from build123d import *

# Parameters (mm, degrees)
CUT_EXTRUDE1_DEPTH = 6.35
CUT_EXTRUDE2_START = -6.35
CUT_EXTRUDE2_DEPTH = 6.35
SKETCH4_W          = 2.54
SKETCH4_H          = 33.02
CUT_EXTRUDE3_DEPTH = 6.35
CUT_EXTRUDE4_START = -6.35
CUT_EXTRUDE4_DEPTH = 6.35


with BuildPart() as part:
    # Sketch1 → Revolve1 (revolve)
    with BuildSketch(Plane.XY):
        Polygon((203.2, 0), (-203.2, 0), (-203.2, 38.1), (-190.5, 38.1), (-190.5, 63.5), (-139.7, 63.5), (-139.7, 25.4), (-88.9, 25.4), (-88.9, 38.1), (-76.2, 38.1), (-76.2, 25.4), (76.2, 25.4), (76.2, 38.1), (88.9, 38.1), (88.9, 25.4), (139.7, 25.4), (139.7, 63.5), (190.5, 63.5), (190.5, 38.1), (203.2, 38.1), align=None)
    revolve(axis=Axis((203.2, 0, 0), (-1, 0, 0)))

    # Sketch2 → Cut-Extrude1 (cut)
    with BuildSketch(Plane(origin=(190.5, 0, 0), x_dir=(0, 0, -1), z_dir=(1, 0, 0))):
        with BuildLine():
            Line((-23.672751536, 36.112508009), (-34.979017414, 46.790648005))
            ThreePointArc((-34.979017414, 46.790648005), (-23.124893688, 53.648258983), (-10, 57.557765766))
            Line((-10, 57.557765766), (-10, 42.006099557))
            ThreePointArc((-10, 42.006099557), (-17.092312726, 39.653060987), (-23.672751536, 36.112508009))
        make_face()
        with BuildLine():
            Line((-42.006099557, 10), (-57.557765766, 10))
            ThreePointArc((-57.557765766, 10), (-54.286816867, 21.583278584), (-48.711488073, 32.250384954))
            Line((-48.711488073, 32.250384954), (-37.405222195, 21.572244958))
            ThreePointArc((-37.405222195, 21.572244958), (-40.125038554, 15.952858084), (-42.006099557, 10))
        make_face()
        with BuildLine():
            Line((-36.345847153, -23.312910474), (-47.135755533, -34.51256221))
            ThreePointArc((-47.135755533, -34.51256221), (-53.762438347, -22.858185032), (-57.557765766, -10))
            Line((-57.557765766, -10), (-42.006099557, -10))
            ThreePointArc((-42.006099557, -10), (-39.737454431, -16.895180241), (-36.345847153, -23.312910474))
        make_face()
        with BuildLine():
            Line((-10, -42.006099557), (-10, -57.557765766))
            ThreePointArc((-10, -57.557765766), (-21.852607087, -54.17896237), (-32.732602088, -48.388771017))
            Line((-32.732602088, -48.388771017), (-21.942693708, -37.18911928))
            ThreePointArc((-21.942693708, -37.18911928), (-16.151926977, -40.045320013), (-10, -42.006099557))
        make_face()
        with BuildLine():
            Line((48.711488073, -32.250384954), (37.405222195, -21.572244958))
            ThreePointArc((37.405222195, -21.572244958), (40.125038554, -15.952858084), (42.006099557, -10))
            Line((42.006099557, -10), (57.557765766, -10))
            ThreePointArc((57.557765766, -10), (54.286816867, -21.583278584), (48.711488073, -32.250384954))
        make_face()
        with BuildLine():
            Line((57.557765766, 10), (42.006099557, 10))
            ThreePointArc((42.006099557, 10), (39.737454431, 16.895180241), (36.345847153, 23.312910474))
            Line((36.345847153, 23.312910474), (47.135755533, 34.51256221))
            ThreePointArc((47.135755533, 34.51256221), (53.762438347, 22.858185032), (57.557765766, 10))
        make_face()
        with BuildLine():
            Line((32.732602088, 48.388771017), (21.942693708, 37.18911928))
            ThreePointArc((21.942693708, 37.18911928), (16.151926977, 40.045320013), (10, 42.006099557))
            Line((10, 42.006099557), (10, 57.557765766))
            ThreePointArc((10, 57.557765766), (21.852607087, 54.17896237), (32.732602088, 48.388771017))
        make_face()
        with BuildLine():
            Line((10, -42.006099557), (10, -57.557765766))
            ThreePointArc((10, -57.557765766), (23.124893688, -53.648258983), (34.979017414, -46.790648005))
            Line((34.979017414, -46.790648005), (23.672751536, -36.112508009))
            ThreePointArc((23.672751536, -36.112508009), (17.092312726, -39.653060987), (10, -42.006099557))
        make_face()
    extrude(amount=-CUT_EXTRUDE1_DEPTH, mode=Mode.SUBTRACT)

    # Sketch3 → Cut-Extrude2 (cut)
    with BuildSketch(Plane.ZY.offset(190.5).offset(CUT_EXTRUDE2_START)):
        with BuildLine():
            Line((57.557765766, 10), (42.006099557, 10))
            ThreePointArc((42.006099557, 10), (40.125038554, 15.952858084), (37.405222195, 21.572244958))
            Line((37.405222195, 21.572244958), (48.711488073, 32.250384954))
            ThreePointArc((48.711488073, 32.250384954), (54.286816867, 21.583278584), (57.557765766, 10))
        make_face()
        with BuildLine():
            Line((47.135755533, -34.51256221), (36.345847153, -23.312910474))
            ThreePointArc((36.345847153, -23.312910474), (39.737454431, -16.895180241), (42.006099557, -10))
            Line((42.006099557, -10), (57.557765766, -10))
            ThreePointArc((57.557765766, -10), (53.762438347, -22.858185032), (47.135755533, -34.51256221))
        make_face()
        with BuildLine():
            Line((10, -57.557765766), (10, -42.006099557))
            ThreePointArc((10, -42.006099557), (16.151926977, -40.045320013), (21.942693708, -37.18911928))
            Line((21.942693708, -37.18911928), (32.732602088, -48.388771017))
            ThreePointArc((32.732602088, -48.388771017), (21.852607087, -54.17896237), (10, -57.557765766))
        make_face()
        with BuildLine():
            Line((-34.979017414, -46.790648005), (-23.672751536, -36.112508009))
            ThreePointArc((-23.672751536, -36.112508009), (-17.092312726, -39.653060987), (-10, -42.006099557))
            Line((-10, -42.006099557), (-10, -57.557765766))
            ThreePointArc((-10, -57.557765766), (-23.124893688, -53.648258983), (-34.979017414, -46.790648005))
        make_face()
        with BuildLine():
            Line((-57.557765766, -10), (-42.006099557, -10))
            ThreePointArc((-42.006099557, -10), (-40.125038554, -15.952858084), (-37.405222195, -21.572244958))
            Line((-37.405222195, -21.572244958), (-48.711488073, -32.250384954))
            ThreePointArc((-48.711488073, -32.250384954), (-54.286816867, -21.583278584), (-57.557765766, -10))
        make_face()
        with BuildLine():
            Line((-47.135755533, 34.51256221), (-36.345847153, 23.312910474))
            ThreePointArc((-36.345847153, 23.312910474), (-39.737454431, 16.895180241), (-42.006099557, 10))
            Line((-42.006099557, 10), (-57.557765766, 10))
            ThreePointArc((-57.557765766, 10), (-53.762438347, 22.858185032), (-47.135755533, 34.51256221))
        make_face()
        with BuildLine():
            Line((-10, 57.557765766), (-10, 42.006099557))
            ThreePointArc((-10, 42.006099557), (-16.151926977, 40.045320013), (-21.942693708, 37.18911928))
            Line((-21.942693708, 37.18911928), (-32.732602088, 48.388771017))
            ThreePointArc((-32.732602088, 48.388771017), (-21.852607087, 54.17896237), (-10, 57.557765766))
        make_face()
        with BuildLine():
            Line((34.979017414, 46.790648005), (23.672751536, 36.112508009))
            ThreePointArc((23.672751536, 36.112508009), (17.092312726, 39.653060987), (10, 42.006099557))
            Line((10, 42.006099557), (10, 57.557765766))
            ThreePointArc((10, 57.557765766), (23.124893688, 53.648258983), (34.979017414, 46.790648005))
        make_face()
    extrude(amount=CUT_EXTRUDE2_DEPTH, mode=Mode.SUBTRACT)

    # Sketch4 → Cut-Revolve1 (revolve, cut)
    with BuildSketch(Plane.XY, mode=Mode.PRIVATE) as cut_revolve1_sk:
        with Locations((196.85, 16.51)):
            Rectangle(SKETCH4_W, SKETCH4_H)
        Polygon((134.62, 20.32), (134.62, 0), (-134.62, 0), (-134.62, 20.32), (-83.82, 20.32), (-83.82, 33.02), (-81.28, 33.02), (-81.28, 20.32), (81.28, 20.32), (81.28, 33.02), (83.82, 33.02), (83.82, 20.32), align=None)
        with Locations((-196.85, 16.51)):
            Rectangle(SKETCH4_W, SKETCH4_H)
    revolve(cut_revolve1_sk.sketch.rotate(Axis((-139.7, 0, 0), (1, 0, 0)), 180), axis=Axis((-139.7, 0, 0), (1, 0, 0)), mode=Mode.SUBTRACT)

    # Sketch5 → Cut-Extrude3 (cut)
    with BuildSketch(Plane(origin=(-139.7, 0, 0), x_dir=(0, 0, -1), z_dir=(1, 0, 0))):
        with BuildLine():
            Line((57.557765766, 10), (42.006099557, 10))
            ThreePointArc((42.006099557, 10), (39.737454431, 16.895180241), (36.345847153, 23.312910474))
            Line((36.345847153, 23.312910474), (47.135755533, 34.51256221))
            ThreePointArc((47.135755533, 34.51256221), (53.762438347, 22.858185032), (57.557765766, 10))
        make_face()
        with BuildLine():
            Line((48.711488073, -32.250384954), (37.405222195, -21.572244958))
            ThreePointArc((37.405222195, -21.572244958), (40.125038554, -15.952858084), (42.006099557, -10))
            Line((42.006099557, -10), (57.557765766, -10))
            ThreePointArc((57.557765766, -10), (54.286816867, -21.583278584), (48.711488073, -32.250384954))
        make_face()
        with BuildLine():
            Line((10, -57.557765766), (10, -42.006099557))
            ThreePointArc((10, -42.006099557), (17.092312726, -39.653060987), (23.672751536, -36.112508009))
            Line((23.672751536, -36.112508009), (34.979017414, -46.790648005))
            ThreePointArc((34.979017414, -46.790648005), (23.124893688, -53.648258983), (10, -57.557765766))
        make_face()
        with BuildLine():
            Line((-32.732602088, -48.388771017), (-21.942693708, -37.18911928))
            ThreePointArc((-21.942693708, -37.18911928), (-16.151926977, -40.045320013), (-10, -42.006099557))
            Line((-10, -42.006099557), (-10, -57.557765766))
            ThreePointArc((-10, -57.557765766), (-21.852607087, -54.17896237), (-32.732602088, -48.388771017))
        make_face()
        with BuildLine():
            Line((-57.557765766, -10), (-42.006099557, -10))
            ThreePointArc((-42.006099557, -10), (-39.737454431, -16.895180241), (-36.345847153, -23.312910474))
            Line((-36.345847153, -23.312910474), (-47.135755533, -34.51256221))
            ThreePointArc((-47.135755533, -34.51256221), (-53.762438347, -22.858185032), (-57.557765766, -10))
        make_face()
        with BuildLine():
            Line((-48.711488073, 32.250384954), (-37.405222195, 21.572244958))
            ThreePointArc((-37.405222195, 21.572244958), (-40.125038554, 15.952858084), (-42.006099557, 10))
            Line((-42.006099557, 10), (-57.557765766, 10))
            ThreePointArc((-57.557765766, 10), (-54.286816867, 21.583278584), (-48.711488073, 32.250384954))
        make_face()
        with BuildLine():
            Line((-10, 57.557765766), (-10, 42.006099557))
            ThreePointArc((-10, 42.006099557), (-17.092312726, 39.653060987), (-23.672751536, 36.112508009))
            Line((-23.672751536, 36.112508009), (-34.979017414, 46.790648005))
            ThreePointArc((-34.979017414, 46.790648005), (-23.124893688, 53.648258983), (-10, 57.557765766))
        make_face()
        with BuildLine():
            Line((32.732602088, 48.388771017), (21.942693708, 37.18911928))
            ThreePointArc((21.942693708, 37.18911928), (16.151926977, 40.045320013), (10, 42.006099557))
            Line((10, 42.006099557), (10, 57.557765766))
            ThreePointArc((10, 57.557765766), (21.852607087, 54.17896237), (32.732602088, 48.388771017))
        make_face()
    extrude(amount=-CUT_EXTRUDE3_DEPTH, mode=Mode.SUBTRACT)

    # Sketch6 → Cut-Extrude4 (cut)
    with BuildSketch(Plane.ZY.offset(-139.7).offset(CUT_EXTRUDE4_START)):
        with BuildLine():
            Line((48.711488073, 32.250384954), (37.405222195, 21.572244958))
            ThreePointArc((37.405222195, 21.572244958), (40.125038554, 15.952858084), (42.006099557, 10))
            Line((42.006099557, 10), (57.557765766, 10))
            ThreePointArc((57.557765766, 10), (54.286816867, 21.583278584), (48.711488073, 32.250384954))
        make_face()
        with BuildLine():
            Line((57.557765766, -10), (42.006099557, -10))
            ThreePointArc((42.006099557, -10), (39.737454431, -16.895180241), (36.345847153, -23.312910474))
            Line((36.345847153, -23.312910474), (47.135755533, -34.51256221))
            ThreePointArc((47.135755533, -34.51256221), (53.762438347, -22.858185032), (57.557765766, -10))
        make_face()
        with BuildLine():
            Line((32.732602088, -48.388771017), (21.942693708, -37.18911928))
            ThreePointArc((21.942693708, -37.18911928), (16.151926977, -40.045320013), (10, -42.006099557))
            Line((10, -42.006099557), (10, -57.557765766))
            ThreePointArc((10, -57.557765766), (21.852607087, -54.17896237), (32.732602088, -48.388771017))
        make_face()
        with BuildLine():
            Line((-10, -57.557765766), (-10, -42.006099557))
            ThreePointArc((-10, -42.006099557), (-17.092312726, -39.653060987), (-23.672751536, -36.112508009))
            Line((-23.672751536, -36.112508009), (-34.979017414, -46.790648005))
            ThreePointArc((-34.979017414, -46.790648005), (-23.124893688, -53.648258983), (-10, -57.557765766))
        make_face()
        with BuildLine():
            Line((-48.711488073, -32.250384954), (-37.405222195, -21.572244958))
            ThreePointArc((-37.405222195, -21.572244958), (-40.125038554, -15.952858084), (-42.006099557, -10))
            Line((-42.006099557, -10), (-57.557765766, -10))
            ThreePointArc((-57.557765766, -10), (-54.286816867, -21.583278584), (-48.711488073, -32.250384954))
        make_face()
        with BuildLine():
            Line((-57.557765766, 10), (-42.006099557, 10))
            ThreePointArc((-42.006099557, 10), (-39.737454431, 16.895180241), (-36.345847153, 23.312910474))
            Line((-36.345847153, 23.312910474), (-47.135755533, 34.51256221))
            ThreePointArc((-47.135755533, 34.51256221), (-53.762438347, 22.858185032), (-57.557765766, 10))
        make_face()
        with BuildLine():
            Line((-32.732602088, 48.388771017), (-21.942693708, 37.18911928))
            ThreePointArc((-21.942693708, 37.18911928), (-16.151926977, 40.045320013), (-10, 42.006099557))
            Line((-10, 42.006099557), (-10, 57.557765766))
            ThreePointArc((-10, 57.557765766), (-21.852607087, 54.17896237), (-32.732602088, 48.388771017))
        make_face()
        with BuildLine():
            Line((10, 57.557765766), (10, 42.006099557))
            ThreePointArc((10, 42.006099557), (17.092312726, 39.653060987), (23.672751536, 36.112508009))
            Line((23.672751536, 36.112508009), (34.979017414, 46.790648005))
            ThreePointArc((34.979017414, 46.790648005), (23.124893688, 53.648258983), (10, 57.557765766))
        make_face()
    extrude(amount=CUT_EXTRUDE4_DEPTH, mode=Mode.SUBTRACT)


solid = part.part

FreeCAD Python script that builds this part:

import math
import FreeCAD as App
import Part
import Sketcher
Q = App.Units.Quantity

doc = App.newDocument("Part")
body = doc.addObject("PartDesign::Body", "Body")

# Sketch on XY plane
sketch1 = doc.addObject("Sketcher::SketchObject", "Sketch")
body.addObject(sketch1)
sketch1.AttachmentSupport = (doc.XY_Plane, [""])
sketch1.MapMode = "FlatFace"
sketch1.addGeometry([
    Part.LineSegment(App.Vector(-203, 0, 0), App.Vector(203, 0, 0)),  # 0
    Part.LineSegment(App.Vector(203, 0, 0), App.Vector(203, 38, 0)),  # 1
    Part.LineSegment(App.Vector(203, 38, 0), App.Vector(190, 38, 0)),  # 2
    Part.LineSegment(App.Vector(190, 38, 0), App.Vector(190, 64, 0)),  # 3
    Part.LineSegment(App.Vector(190, 64, 0), App.Vector(140, 64, 0)),  # 4
    Part.LineSegment(App.Vector(140, 64, 0), App.Vector(140, 25, 0)),  # 5
    Part.LineSegment(App.Vector(140, 25, 0), App.Vector(89, 25, 0)),  # 6
    Part.LineSegment(App.Vector(89, 25, 0), App.Vector(89, 38, 0)),  # 7
    Part.LineSegment(App.Vector(89, 38, 0), App.Vector(76, 38, 0)),  # 8
    Part.LineSegment(App.Vector(76, 38, 0), App.Vector(76, 25, 0)),  # 9
    Part.LineSegment(App.Vector(76, 25, 0), App.Vector(-76, 25, 0)),  # 10
    Part.LineSegment(App.Vector(-76, 25, 0), App.Vector(-76, 38, 0)),  # 11
    Part.LineSegment(App.Vector(-76, 38, 0), App.Vector(-89, 38, 0)),  # 12
    Part.LineSegment(App.Vector(-89, 38, 0), App.Vector(-89, 25, 0)),  # 13
    Part.LineSegment(App.Vector(-89, 25, 0), App.Vector(-140, 25, 0)),  # 14
    Part.LineSegment(App.Vector(-140, 25, 0), App.Vector(-140, 64, 0)),  # 15
    Part.LineSegment(App.Vector(-140, 64, 0), App.Vector(-190, 64, 0)),  # 16
    Part.LineSegment(App.Vector(-190, 64, 0), App.Vector(-190, 38, 0)),  # 17
    Part.LineSegment(App.Vector(-190, 38, 0), App.Vector(-203, 38, 0)),  # 18
    Part.LineSegment(App.Vector(-203, 38, 0), App.Vector(-203, 0, 0)),  # 19
], False)
sketch1.addConstraint([
    Sketcher.Constraint("Coincident", 0, 2, 1, 1),
    Sketcher.Constraint("Coincident", 1, 2, 2, 1),
    Sketcher.Constraint("Coincident", 2, 2, 3, 1),
    Sketcher.Constraint("Coincident", 3, 2, 4, 1),
    Sketcher.Constraint("Coincident", 4, 2, 5, 1),
    Sketcher.Constraint("Coincident", 5, 2, 6, 1),
    Sketcher.Constraint("Coincident", 6, 2, 7, 1),
    Sketcher.Constraint("Coincident", 7, 2, 8, 1),
    Sketcher.Constraint("Coincident", 8, 2, 9, 1),
    Sketcher.Constraint("Coincident", 9, 2, 10, 1),
    Sketcher.Constraint("Coincident", 10, 2, 11, 1),
    Sketcher.Constraint("Coincident", 11, 2, 12, 1),
    Sketcher.Constraint("Coincident", 12, 2, 13, 1),
    Sketcher.Constraint("Coincident", 13, 2, 14, 1),
    Sketcher.Constraint("Coincident", 14, 2, 15, 1),
    Sketcher.Constraint("Coincident", 15, 2, 16, 1),
    Sketcher.Constraint("Coincident", 16, 2, 17, 1),
    Sketcher.Constraint("Coincident", 17, 2, 18, 1),
    Sketcher.Constraint("Coincident", 18, 2, 19, 1),
    Sketcher.Constraint("Coincident", 19, 2, 0, 1),
    Sketcher.Constraint("Horizontal", 0),
    Sketcher.Constraint("Vertical", 1),
    Sketcher.Constraint("Horizontal", 2),
    Sketcher.Constraint("Vertical", 3),
    Sketcher.Constraint("Horizontal", 4),
    Sketcher.Constraint("Vertical", 5),
    Sketcher.Constraint("Horizontal", 6),
    Sketcher.Constraint("Vertical", 7),
    Sketcher.Constraint("Horizontal", 8),
    Sketcher.Constraint("Vertical", 9),
    Sketcher.Constraint("Horizontal", 10),
    Sketcher.Constraint("Vertical", 11),
    Sketcher.Constraint("Horizontal", 12),
    Sketcher.Constraint("Vertical", 13),
    Sketcher.Constraint("Horizontal", 14),
    Sketcher.Constraint("Vertical", 15),
    Sketcher.Constraint("Horizontal", 16),
    Sketcher.Constraint("Vertical", 17),
    Sketcher.Constraint("Horizontal", 18),
    Sketcher.Constraint("Vertical", 19),
    Sketcher.Constraint("Symmetric", 0, 2, 19, 2, -1, 1),
    Sketcher.Constraint("Symmetric", 8, 2, 11, 2, -2),
    Sketcher.Constraint("Symmetric", 6, 2, 13, 2, -2),
    Sketcher.Constraint("Symmetric", 4, 2, 15, 2, -2),
    Sketcher.Constraint("Symmetric", 2, 2, 17, 2, -2),
    Sketcher.Constraint("Horizontal", 2, 2, 7, 2),
    Sketcher.Constraint("Horizontal", 6, 2, 9, 2),
    Sketcher.Constraint("Equal", 4, 6),
    Sketcher.Constraint("Equal", 2, 8),
    Sketcher.Constraint("Equal", 1, 5),
    Sketcher.Constraint("Equal", 18, 7),
    Sketcher.Constraint("DistanceX", 0, 1, 0, 2, Q("16 in")),
    Sketcher.Constraint("DistanceX", 4, 2, 4, 1, Q("2 in")),
    Sketcher.Constraint("DistanceX", 10, 2, 10, 1, Q("6 in")),
    Sketcher.Constraint("DistanceY", 3, 1, 3, 2, Q("1 in")),
])
revolution = doc.addObject("PartDesign::Revolution", "Revolution")
body.addObject(revolution)
revolution.Profile = sketch1
revolution.ReferenceAxis = (sketch1, ["H_Axis"])
revolution.Angle = 360

# Sketch on YZ plane
sketch2 = doc.addObject("Sketcher::SketchObject", "Sketch001")
body.addObject(sketch2)
sketch2.AttachmentSupport = (doc.YZ_Plane, [""])
sketch2.MapMode = "FlatFace"
sketch2.AttachmentOffset = App.Placement(App.Vector(0, 0, 7.5 * 25.4), App.Rotation())
sketch2.addGeometry([
    Part.LineSegment(App.Vector(47, 35, 0), App.Vector(36, 24, 0)),  # 0
    Part.ArcOfCircle(Part.Circle(App.Vector(0, 0, 0), App.Vector(0, 0, 1), 43), math.radians(13.39), math.radians(33.25)),  # 1
    Part.LineSegment(App.Vector(42, 10, 0), App.Vector(58, 10, 0)),  # 2
    Part.ArcOfCircle(Part.Circle(App.Vector(0, 0, 0), App.Vector(0, 0, 1), 58), math.radians(10), math.radians(37)),  # 3
    Part.LineSegment(App.Vector(10, 58, 0), App.Vector(10, 42, 0)),  # 4
    Part.ArcOfCircle(Part.Circle(App.Vector(0, 0, 0), App.Vector(0, 0, 1), 43), math.radians(60.03), math.radians(76.61)),  # 5
    Part.LineSegment(App.Vector(22, 37, 0), App.Vector(32, 49, 0)),  # 6
    Part.ArcOfCircle(Part.Circle(App.Vector(0, 0, 0), App.Vector(0, 0, 1), 58), math.radians(56), math.radians(80)),  # 7
    Part.LineSegment(App.Vector(-35, 47, 0), App.Vector(-23, 36, 0)),  # 8
    Part.ArcOfCircle(Part.Circle(App.Vector(0, 0, 0), App.Vector(0, 0, 1), 43), math.radians(103.39), math.radians(122.68)),  # 9
    Part.LineSegment(App.Vector(-10, 42, 0), App.Vector(-10, 58, 0)),  # 10
    Part.ArcOfCircle(Part.Circle(App.Vector(0, 0, 0), App.Vector(0, 0, 1), 58), math.radians(100), math.radians(126)),  # 11
    Part.LineSegment(App.Vector(-58, 10, 0), App.Vector(-42, 10, 0)),  # 12
    Part.ArcOfCircle(Part.Circle(App.Vector(0, 0, 0), App.Vector(0, 0, 1), 43), math.radians(149.46), math.radians(166.61)),  # 13
    Part.LineSegment(App.Vector(-37, 22, 0), App.Vector(-48, 33, 0)),  # 14
    Part.ArcOfCircle(Part.Circle(App.Vector(0, 0, 0), App.Vector(0, 0, 1), 58), math.radians(146), math.radians(170)),  # 15
    Part.LineSegment(App.Vector(-22, -37, 0), App.Vector(-32, -49, 0)),  # 16
    Part.ArcOfCircle(Part.Circle(App.Vector(0, 0, 0), App.Vector(0, 0, 1), 58), math.radians(-124), math.radians(-100)),  # 17
    Part.LineSegment(App.Vector(-10, -58, 0), App.Vector(-10, -42, 0)),  # 18
    Part.ArcOfCircle(Part.Circle(App.Vector(0, 0, 0), App.Vector(0, 0, 1), 43), math.radians(-119.97), math.radians(-103.39)),  # 19
    Part.LineSegment(App.Vector(10, -42, 0), App.Vector(10, -58, 0)),  # 20
    Part.ArcOfCircle(Part.Circle(App.Vector(0, 0, 0), App.Vector(0, 0, 1), 58), math.radians(-80), math.radians(-54)),  # 21
    Part.LineSegment(App.Vector(35, -47, 0), App.Vector(23, -36, 0)),  # 22
    Part.ArcOfCircle(Part.Circle(App.Vector(0, 0, 0), App.Vector(0, 0, 1), 43), math.radians(-76.61), math.radians(-57.32)),  # 23
    Part.LineSegment(App.Vector(37, -22, 0), App.Vector(48, -33, 0)),  # 24
    Part.ArcOfCircle(Part.Circle(App.Vector(0, 0, 0), App.Vector(0, 0, 1), 58), math.radians(-34), math.radians(-10)),  # 25
    Part.LineSegment(App.Vector(58, -10, 0), App.Vector(42, -10, 0)),  # 26
    Part.ArcOfCircle(Part.Circle(App.Vector(0, 0, 0), App.Vector(0, 0, 1), 43), math.radians(-30.54), math.radians(-13.39)),  # 27
    Part.LineSegment(App.Vector(-42, -10, 0), App.Vector(-58, -10, 0)),  # 28
    Part.ArcOfCircle(Part.Circle(App.Vector(0, 0, 0), App.Vector(0, 0, 1), 58), math.radians(-170), math.radians(-143)),  # 29
    Part.LineSegment(App.Vector(-47, -35, 0), App.Vector(-36, -24, 0)),  # 30
    Part.ArcOfCircle(Part.Circle(App.Vector(0, 0, 0), App.Vector(0, 0, 1), 43), math.radians(-166.61), math.radians(-146.75)),  # 31
], False)
sketch2.addConstraint([
    Sketcher.Constraint("Coincident", 0, 2, 1, 2),
    Sketcher.Constraint("Coincident", 1, 1, 2, 1),
    Sketcher.Constraint("Coincident", 2, 2, 3, 1),
    Sketcher.Constraint("Coincident", 3, 2, 0, 1),
    Sketcher.Constraint("Coincident", 4, 2, 5, 2),
    Sketcher.Constraint("Coincident", 5, 1, 6, 1),
    Sketcher.Constraint("Coincident", 6, 2, 7, 1),
    Sketcher.Constraint("Coincident", 7, 2, 4, 1),
    Sketcher.Constraint("Coincident", 8, 2, 9, 2),
    Sketcher.Constraint("Coincident", 9, 1, 10, 1),
    Sketcher.Constraint("Coincident", 10, 2, 11, 1),
    Sketcher.Constraint("Coincident", 11, 2, 8, 1),
    Sketcher.Constraint("Coincident", 12, 2, 13, 2),
    Sketcher.Constraint("Coincident", 13, 1, 14, 1),
    Sketcher.Constraint("Coincident", 14, 2, 15, 1),
    Sketcher.Constraint("Coincident", 15, 2, 12, 1),
    Sketcher.Constraint("Coincident", 16, 2, 17, 1),
    Sketcher.Constraint("Coincident", 17, 2, 18, 1),
    Sketcher.Constraint("Coincident", 18, 2, 19, 2),
    Sketcher.Constraint("Coincident", 19, 1, 16, 1),
    Sketcher.Constraint("Coincident", 20, 2, 21, 1),
    Sketcher.Constraint("Coincident", 21, 2, 22, 1),
    Sketcher.Constraint("Coincident", 22, 2, 23, 2),
    Sketcher.Constraint("Coincident", 23, 1, 20, 1),
    Sketcher.Constraint("Coincident", 24, 2, 25, 1),
    Sketcher.Constraint("Coincident", 25, 2, 26, 1),
    Sketcher.Constraint("Coincident", 26, 2, 27, 2),
    Sketcher.Constraint("Coincident", 27, 1, 24, 1),
    Sketcher.Constraint("Coincident", 28, 2, 29, 1),
    Sketcher.Constraint("Coincident", 29, 2, 30, 1),
    Sketcher.Constraint("Coincident", 30, 2, 31, 2),
    Sketcher.Constraint("Coincident", 31, 1, 28, 1),
    Sketcher.Constraint("Horizontal", 2),
    Sketcher.Constraint("Vertical", 4),
    Sketcher.Constraint("Vertical", 10),
    Sketcher.Constraint("Horizontal", 12),
    Sketcher.Constraint("Vertical", 18),
    Sketcher.Constraint("Vertical", 20),
    Sketcher.Constraint("Horizontal", 26),
    Sketcher.Constraint("Horizontal", 28),
    Sketcher.Constraint("Coincident", 1, 3, -1, 1),
    Sketcher.Constraint("Coincident", 3, 3, -1, 1),
    Sketcher.Constraint("Coincident", 5, 3, -1, 1),
    Sketcher.Constraint("Coincident", 7, 3, -1, 1),
    Sketcher.Constraint("Coincident", 9, 3, -1, 1),
    Sketcher.Constraint("Coincident", 11, 3, -1, 1),
    Sketcher.Constraint("Coincident", 13, 3, -1, 1),
    Sketcher.Constraint("Coincident", 15, 3, -1, 1),
    Sketcher.Constraint("Coincident", 17, 3, -1, 1),
    Sketcher.Constraint("Coincident", 19, 3, -1, 1),
    Sketcher.Constraint("Coincident", 21, 3, -1, 1),
    Sketcher.Constraint("Coincident", 23, 3, -1, 1),
    Sketcher.Constraint("Coincident", 25, 3, -1, 1),
    Sketcher.Constraint("Coincident", 27, 3, -1, 1),
    Sketcher.Constraint("Coincident", 29, 3, -1, 1),
    Sketcher.Constraint("Coincident", 31, 3, -1, 1),
    Sketcher.Constraint("Equal", 1, 5),
    Sketcher.Constraint("Equal", 3, 7),
    Sketcher.Constraint("Equal", 5, 9),
    Sketcher.Constraint("Equal", 7, 11),
    Sketcher.Constraint("Equal", 9, 13),
    Sketcher.Constraint("Equal", 11, 15),
    Sketcher.Constraint("Equal", 15, 17),
    Sketcher.Constraint("Equal", 13, 19),
    Sketcher.Constraint("Equal", 17, 21),
    Sketcher.Constraint("Equal", 19, 23),
    Sketcher.Constraint("Equal", 21, 25),
    Sketcher.Constraint("Equal", 23, 27),
    Sketcher.Constraint("Equal", 25, 29),
    Sketcher.Constraint("Equal", 27, 31),
    Sketcher.Constraint("Parallel", 0, 6),
    Sketcher.Constraint("Parallel", 8, 14),
    Sketcher.Constraint("Parallel", 6, 16),
    Sketcher.Constraint("Parallel", 14, 22),
    Sketcher.Constraint("Parallel", 22, 24),
    Sketcher.Constraint("Parallel", 16, 30),
    Sketcher.Constraint("Horizontal", 4, 2, 9, 1),
    Sketcher.Constraint("Horizontal", 2, 2, 12, 2),
    Sketcher.Constraint("Horizontal", 17, 2, 20, 2),
    Sketcher.Constraint("Horizontal", 26, 2, 28, 2),
    Sketcher.Constraint("Vertical", 10, 2, 17, 2),
    Sketcher.Constraint("Vertical", 2, 2, 25, 2),
    Sketcher.Constraint("Equal", 28, 4),
    Sketcher.Constraint("Equal", 0, 6),
    Sketcher.Constraint("Equal", 6, 8),
    Sketcher.Constraint("Equal", 8, 14),
    Sketcher.Constraint("Equal", 14, 16),
    Sketcher.Constraint("Equal", 16, 22),
    Sketcher.Constraint("Equal", 22, 24),
    Sketcher.Constraint("Equal", 24, 30),
    Sketcher.Constraint("Radius", 1, Q("1.7 in")),
    Sketcher.Constraint("Radius", 3, Q("2.3 in")),
    Sketcher.Constraint("DistanceX", -1, 1, 6, 2, Q("1.2697002 in")),
    Sketcher.Constraint("DistanceX", 4, 2, 5, 1, Q("0.4556002 in")),
    Sketcher.Constraint("DistanceY", -1, 1, 2, 2, 10.0),
    Sketcher.Constraint("DistanceX", 8, 2, -1, 1, 23.31291),
])
pocket1 = doc.addObject("PartDesign::Pocket", "Pocket")
body.addObject(pocket1)
pocket1.Profile = sketch2
pocket1.Length = Q("0.25 in")

# Sketch on YZ plane
sketch3 = doc.addObject("Sketcher::SketchObject", "Sketch002")
body.addObject(sketch3)
sketch3.AttachmentSupport = (doc.YZ_Plane, [""])
sketch3.MapMode = "FlatFace"
sketch3.AttachmentOffset = App.Placement(App.Vector(0, 0, -7.25 * 25.4), App.Rotation())
sketch3.addGeometry([
    Part.LineSegment(App.Vector(10, 42, 0), App.Vector(10, 58, 0)),  # 0
    Part.ArcOfCircle(Part.Circle(App.Vector(0, 0, 0), App.Vector(0, 0, 1), 58), math.radians(56), math.radians(80)),  # 1
    Part.LineSegment(App.Vector(32, 49, 0), App.Vector(22, 37, 0)),  # 2
    Part.ArcOfCircle(Part.Circle(App.Vector(0, 0, 0), App.Vector(0, 0, 1), 43), math.radians(60.03), math.radians(76.61)),  # 3
    Part.LineSegment(App.Vector(-23, 36, 0), App.Vector(-35, 47, 0)),  # 4
    Part.ArcOfCircle(Part.Circle(App.Vector(0, 0, 0), App.Vector(0, 0, 1), 58), math.radians(100), math.radians(126)),  # 5
    Part.LineSegment(App.Vector(-10, 58, 0), App.Vector(-10, 42, 0)),  # 6
    Part.ArcOfCircle(Part.Circle(App.Vector(0, 0, 0), App.Vector(0, 0, 1), 43), math.radians(103.39), math.radians(122.68)),  # 7
    Part.LineSegment(App.Vector(-42, 10, 0), App.Vector(-58, 10, 0)),  # 8
    Part.ArcOfCircle(Part.Circle(App.Vector(0, 0, 0), App.Vector(0, 0, 1), 58), math.radians(146), math.radians(170)),  # 9
    Part.LineSegment(App.Vector(-48, 33, 0), App.Vector(-37, 22, 0)),  # 10
    Part.ArcOfCircle(Part.Circle(App.Vector(0, 0, 0), App.Vector(0, 0, 1), 43), math.radians(149.46), math.radians(166.61)),  # 11
    Part.LineSegment(App.Vector(-36, -24, 0), App.Vector(-47, -35, 0)),  # 12
    Part.ArcOfCircle(Part.Circle(App.Vector(0, 0, 0), App.Vector(0, 0, 1), 58), math.radians(-170), math.radians(-143)),  # 13
    Part.LineSegment(App.Vector(-58, -10, 0), App.Vector(-42, -10, 0)),  # 14
    Part.ArcOfCircle(Part.Circle(App.Vector(0, 0, 0), App.Vector(0, 0, 1), 43), math.radians(-166.61), math.radians(-146.75)),  # 15
    Part.LineSegment(App.Vector(-10, -42, 0), App.Vector(-10, -58, 0)),  # 16
    Part.ArcOfCircle(Part.Circle(App.Vector(0, 0, 0), App.Vector(0, 0, 1), 58), math.radians(-124), math.radians(-100)),  # 17
    Part.LineSegment(App.Vector(-32, -49, 0), App.Vector(-22, -37, 0)),  # 18
    Part.ArcOfCircle(Part.Circle(App.Vector(0, 0, 0), App.Vector(0, 0, 1), 43), math.radians(-119.97), math.radians(-103.39)),  # 19
    Part.LineSegment(App.Vector(23, -36, 0), App.Vector(35, -47, 0)),  # 20
    Part.ArcOfCircle(Part.Circle(App.Vector(0, 0, 0), App.Vector(0, 0, 1), 58), math.radians(-80), math.radians(-54)),  # 21
    Part.LineSegment(App.Vector(10, -58, 0), App.Vector(10, -42, 0)),  # 22
    Part.ArcOfCircle(Part.Circle(App.Vector(0, 0, 0), App.Vector(0, 0, 1), 43), math.radians(-76.61), math.radians(-57.32)),  # 23
    Part.LineSegment(App.Vector(42, -10, 0), App.Vector(58, -10, 0)),  # 24
    Part.ArcOfCircle(Part.Circle(App.Vector(0, 0, 0), App.Vector(0, 0, 1), 58), math.radians(-34), math.radians(-10)),  # 25
    Part.LineSegment(App.Vector(48, -33, 0), App.Vector(37, -22, 0)),  # 26
    Part.ArcOfCircle(Part.Circle(App.Vector(0, 0, 0), App.Vector(0, 0, 1), 43), math.radians(-30.54), math.radians(-13.39)),  # 27
    Part.LineSegment(App.Vector(36, 24, 0), App.Vector(47, 35, 0)),  # 28
    Part.ArcOfCircle(Part.Circle(App.Vector(0, 0, 0), App.Vector(0, 0, 1), 58), math.radians(10), math.radians(37)),  # 29
    Part.LineSegment(App.Vector(58, 10, 0), App.Vector(42, 10, 0)),  # 30
    Part.ArcOfCircle(Part.Circle(App.Vector(0, 0, 0), App.Vector(0, 0, 1), 43), math.radians(13.39), math.radians(33.25)),  # 31
], False)
sketch3.addConstraint([
    Sketcher.Constraint("Coincident", 0, 2, 1, 2),
    Sketcher.Constraint("Coincident", 1, 1, 2, 1),
    Sketcher.Constraint("Coincident", 2, 2, 3, 1),
    Sketcher.Constraint("Coincident", 3, 2, 0, 1),
    Sketcher.Constraint("Coincident", 4, 2, 5, 2),
    Sketcher.Constraint("Coincident", 5, 1, 6, 1),
    Sketcher.Constraint("Coincident", 6, 2, 7, 1),
    Sketcher.Constraint("Coincident", 7, 2, 4, 1),
    Sketcher.Constraint("Coincident", 8, 2, 9, 2),
    Sketcher.Constraint("Coincident", 9, 1, 10, 1),
    Sketcher.Constraint("Coincident", 10, 2, 11, 1),
    Sketcher.Constraint("Coincident", 11, 2, 8, 1),
    Sketcher.Constraint("Coincident", 12, 2, 13, 2),
    Sketcher.Constraint("Coincident", 13, 1, 14, 1),
    Sketcher.Constraint("Coincident", 14, 2, 15, 1),
    Sketcher.Constraint("Coincident", 15, 2, 12, 1),
    Sketcher.Constraint("Coincident", 16, 2, 17, 2),
    Sketcher.Constraint("Coincident", 17, 1, 18, 1),
    Sketcher.Constraint("Coincident", 18, 2, 19, 1),
    Sketcher.Constraint("Coincident", 19, 2, 16, 1),
    Sketcher.Constraint("Coincident", 20, 2, 21, 2),
    Sketcher.Constraint("Coincident", 21, 1, 22, 1),
    Sketcher.Constraint("Coincident", 22, 2, 23, 1),
    Sketcher.Constraint("Coincident", 23, 2, 20, 1),
    Sketcher.Constraint("Coincident", 24, 2, 25, 2),
    Sketcher.Constraint("Coincident", 25, 1, 26, 1),
    Sketcher.Constraint("Coincident", 26, 2, 27, 1),
    Sketcher.Constraint("Coincident", 27, 2, 24, 1),
    Sketcher.Constraint("Coincident", 28, 2, 29, 2),
    Sketcher.Constraint("Coincident", 29, 1, 30, 1),
    Sketcher.Constraint("Coincident", 30, 2, 31, 1),
    Sketcher.Constraint("Coincident", 31, 2, 28, 1),
    Sketcher.Constraint("Vertical", 0),
    Sketcher.Constraint("Vertical", 6),
    Sketcher.Constraint("Horizontal", 8),
    Sketcher.Constraint("Horizontal", 14),
    Sketcher.Constraint("Vertical", 16),
    Sketcher.Constraint("Vertical", 22),
    Sketcher.Constraint("Horizontal", 24),
    Sketcher.Constraint("Horizontal", 30),
    Sketcher.Constraint("Coincident", 1, 3, -1, 1),
    Sketcher.Constraint("Coincident", 3, 3, -1, 1),
    Sketcher.Constraint("Coincident", 5, 3, -1, 1),
    Sketcher.Constraint("Coincident", 7, 3, -1, 1),
    Sketcher.Constraint("Coincident", 9, 3, -1, 1),
    Sketcher.Constraint("Coincident", 11, 3, -1, 1),
    Sketcher.Constraint("Coincident", 13, 3, -1, 1),
    Sketcher.Constraint("Coincident", 15, 3, -1, 1),
    Sketcher.Constraint("Coincident", 17, 3, -1, 1),
    Sketcher.Constraint("Coincident", 19, 3, -1, 1),
    Sketcher.Constraint("Coincident", 21, 3, -1, 1),
    Sketcher.Constraint("Coincident", 23, 3, -1, 1),
    Sketcher.Constraint("Coincident", 25, 3, -1, 1),
    Sketcher.Constraint("Coincident", 27, 3, -1, 1),
    Sketcher.Constraint("Coincident", 29, 3, -1, 1),
    Sketcher.Constraint("Coincident", 31, 3, -1, 1),
    Sketcher.Constraint("Equal", 1, 5),
    Sketcher.Constraint("Equal", 3, 7),
    Sketcher.Constraint("Equal", 5, 9),
    Sketcher.Constraint("Equal", 7, 11),
    Sketcher.Constraint("Equal", 9, 13),
    Sketcher.Constraint("Equal", 11, 15),
    Sketcher.Constraint("Equal", 13, 17),
    Sketcher.Constraint("Equal", 15, 19),
    Sketcher.Constraint("Equal", 17, 21),
    Sketcher.Constraint("Equal", 19, 23),
    Sketcher.Constraint("Equal", 21, 25),
    Sketcher.Constraint("Equal", 23, 27),
    Sketcher.Constraint("Equal", 25, 29),
    Sketcher.Constraint("Equal", 27, 31),
    Sketcher.Constraint("Parallel", 4, 10),
    Sketcher.Constraint("Parallel", 2, 12),
    Sketcher.Constraint("Parallel", 12, 18),
    Sketcher.Constraint("Parallel", 10, 20),
    Sketcher.Constraint("Parallel", 20, 26),
    Sketcher.Constraint("Parallel", 18, 28),
    Sketcher.Constraint("Horizontal", 0, 2, 5, 1),
    Sketcher.Constraint("Horizontal", 16, 2, 21, 1),
    Sketcher.Constraint("Horizontal", 14, 2, 24, 2),
    Sketcher.Constraint("Horizontal", 11, 2, 29, 1),
    Sketcher.Constraint("Vertical", 8, 2, 13, 1),
    Sketcher.Constraint("Vertical", 6, 2, 16, 2),
    Sketcher.Constraint("Equal", 30, 0),
    Sketcher.Constraint("Equal", 2, 4),
    Sketcher.Constraint("Equal", 4, 10),
    Sketcher.Constraint("Equal", 10, 12),
    Sketcher.Constraint("Equal", 12, 18),
    Sketcher.Constraint("Equal", 18, 20),
    Sketcher.Constraint("Equal", 20, 26),
    Sketcher.Constraint("Equal", 26, 28),
    Sketcher.Constraint("Radius", 1, Q("2.3 in")),
    Sketcher.Constraint("Radius", 3, Q("1.7 in")),
    Sketcher.Constraint("DistanceX", -1, 1, 1, 1, Q("1.2697002 in")),
    Sketcher.Constraint("DistanceX", 0, 2, 2, 2, Q("0.4556002 in")),
    Sketcher.Constraint("DistanceX", -1, 1, 0, 2, 10.0),
    Sketcher.Constraint("DistanceX", 7, 2, -1, 1, 23.31291),
])
pocket2 = doc.addObject("PartDesign::Pocket", "Pocket001")
body.addObject(pocket2)
pocket2.Profile = sketch3
pocket2.Length = Q("0.25 in")

# Sketch on XY plane
sketch4 = doc.addObject("Sketcher::SketchObject", "Sketch003")
body.addObject(sketch4)
sketch4.AttachmentSupport = (doc.XY_Plane, [""])
sketch4.MapMode = "FlatFace"
sketch4.addGeometry([
    Part.LineSegment(App.Vector(195.6, 33, 0), App.Vector(195.6, 0, 0)),  # 0
    Part.LineSegment(App.Vector(195.6, 0, 0), App.Vector(198.1, 0, 0)),  # 1
    Part.LineSegment(App.Vector(198.1, 0, 0), App.Vector(198.1, 33, 0)),  # 2
    Part.LineSegment(App.Vector(198.1, 33, 0), App.Vector(195.6, 33, 0)),  # 3
    Part.LineSegment(App.Vector(134.6, 0, 0), App.Vector(134.6, 20.3, 0)),  # 4
    Part.LineSegment(App.Vector(134.6, 20.3, 0), App.Vector(83.8, 20.3, 0)),  # 5
    Part.LineSegment(App.Vector(83.8, 20.3, 0), App.Vector(83.8, 33, 0)),  # 6
    Part.LineSegment(App.Vector(83.8, 33, 0), App.Vector(81.3, 33, 0)),  # 7
    Part.LineSegment(App.Vector(81.3, 33, 0), App.Vector(81.3, 20.3, 0)),  # 8
    Part.LineSegment(App.Vector(81.3, 20.3, 0), App.Vector(-81.3, 20.3, 0)),  # 9
    Part.LineSegment(App.Vector(-81.3, 20.3, 0), App.Vector(-81.3, 33, 0)),  # 10
    Part.LineSegment(App.Vector(-81.3, 33, 0), App.Vector(-83.8, 33, 0)),  # 11
    Part.LineSegment(App.Vector(-83.8, 33, 0), App.Vector(-83.8, 20.3, 0)),  # 12
    Part.LineSegment(App.Vector(-83.8, 20.3, 0), App.Vector(-134.6, 20.3, 0)),  # 13
    Part.LineSegment(App.Vector(-134.6, 20.3, 0), App.Vector(-134.6, 0, 0)),  # 14
    Part.LineSegment(App.Vector(-134.6, 0, 0), App.Vector(134.6, 0, 0)),  # 15
    Part.LineSegment(App.Vector(-198.1, 33, 0), App.Vector(-198.1, 0, 0)),  # 16
    Part.LineSegment(App.Vector(-198.1, 0, 0), App.Vector(-195.6, 0, 0)),  # 17
    Part.LineSegment(App.Vector(-195.6, 0, 0), App.Vector(-195.6, 33, 0)),  # 18
    Part.LineSegment(App.Vector(-195.6, 33, 0), App.Vector(-198.1, 33, 0)),  # 19
], False)
sketch4.addConstraint([
    Sketcher.Constraint("Coincident", 0, 2, 1, 1),
    Sketcher.Constraint("Coincident", 1, 2, 2, 1),
    Sketcher.Constraint("Coincident", 2, 2, 3, 1),
    Sketcher.Constraint("Coincident", 3, 2, 0, 1),
    Sketcher.Constraint("Coincident", 4, 2, 5, 1),
    Sketcher.Constraint("Coincident", 5, 2, 6, 1),
    Sketcher.Constraint("Coincident", 6, 2, 7, 1),
    Sketcher.Constraint("Coincident", 7, 2, 8, 1),
    Sketcher.Constraint("Coincident", 8, 2, 9, 1),
    Sketcher.Constraint("Coincident", 9, 2, 10, 1),
    Sketcher.Constraint("Coincident", 10, 2, 11, 1),
    Sketcher.Constraint("Coincident", 11, 2, 12, 1),
    Sketcher.Constraint("Coincident", 12, 2, 13, 1),
    Sketcher.Constraint("Coincident", 13, 2, 14, 1),
    Sketcher.Constraint("Coincident", 14, 2, 15, 1),
    Sketcher.Constraint("Coincident", 15, 2, 4, 1),
    Sketcher.Constraint("Coincident", 16, 2, 17, 1),
    Sketcher.Constraint("Coincident", 17, 2, 18, 1),
    Sketcher.Constraint("Coincident", 18, 2, 19, 1),
    Sketcher.Constraint("Coincident", 19, 2, 16, 1),
    Sketcher.Constraint("Vertical", 0),
    Sketcher.Constraint("Horizontal", 1),
    Sketcher.Constraint("Vertical", 2),
    Sketcher.Constraint("Horizontal", 3),
    Sketcher.Constraint("Vertical", 4),
    Sketcher.Constraint("Horizontal", 5),
    Sketcher.Constraint("Vertical", 6),
    Sketcher.Constraint("Horizontal", 7),
    Sketcher.Constraint("Vertical", 8),
    Sketcher.Constraint("Horizontal", 9),
    Sketcher.Constraint("Vertical", 10),
    Sketcher.Constraint("Horizontal", 11),
    Sketcher.Constraint("Vertical", 12),
    Sketcher.Constraint("Horizontal", 13),
    Sketcher.Constraint("Vertical", 14),
    Sketcher.Constraint("Horizontal", 15),
    Sketcher.Constraint("Vertical", 16),
    Sketcher.Constraint("Horizontal", 17),
    Sketcher.Constraint("Vertical", 18),
    Sketcher.Constraint("Horizontal", 19),
    Sketcher.Constraint("Symmetric", 14, 2, 15, 2, -1, 1),
    Sketcher.Constraint("Symmetric", 1, 2, 16, 2, -1, 1),
    Sketcher.Constraint("Symmetric", 7, 2, 10, 2, -2),
    Sketcher.Constraint("Symmetric", 5, 2, 12, 2, -2),
    Sketcher.Constraint("Symmetric", 0, 2, 17, 2, -2),
    Sketcher.Constraint("Horizontal", 3, 2, 6, 2),
    Sketcher.Constraint("Horizontal", 5, 2, 8, 2),
    Sketcher.Constraint("Horizontal", 11, 2, 18, 2),
    Sketcher.Constraint("Equal", 3, 7),
    Sketcher.Constraint("DistanceX", 5, 2, 5, 1, Q("2 in")),
    Sketcher.Constraint("DistanceX", 1, 1, 1, 2, Q("0.1 in")),
    Sketcher.Constraint("DistanceX", 9, 2, 9, 1, Q("6.4 in")),
    Sketcher.Constraint("DistanceY", 0, 2, 0, 1, Q("1.3 in")),
    Sketcher.Constraint("DistanceY", 4, 1, 4, 2, Q("0.8 in")),
    Sketcher.Constraint("DistanceX", -1, 1, 0, 2, Q("7.7 in")),
])
groove = doc.addObject("PartDesign::Groove", "Groove")
body.addObject(groove)
groove.Profile = sketch4
groove.ReferenceAxis = (sketch4, ["H_Axis"])
groove.Angle = 360

# Sketch on YZ plane
sketch5 = doc.addObject("Sketcher::SketchObject", "Sketch004")
body.addObject(sketch5)
sketch5.AttachmentSupport = (doc.YZ_Plane, [""])
sketch5.MapMode = "FlatFace"
sketch5.AttachmentOffset = App.Placement(App.Vector(0, 0, -5.5 * 25.4), App.Rotation())
sketch5.addGeometry([
    Part.LineSegment(App.Vector(10, -42, 0), App.Vector(10, -58, 0)),  # 0
    Part.ArcOfCircle(Part.Circle(App.Vector(0, 0, 0), App.Vector(0, 0, 1), 58), math.radians(-80), math.radians(-54)),  # 1
    Part.LineSegment(App.Vector(35, -47, 0), App.Vector(23, -36, 0)),  # 2
    Part.ArcOfCircle(Part.Circle(App.Vector(0, 0, 0), App.Vector(0, 0, 1), 43), math.radians(-76.61), math.radians(-57.32)),  # 3
    Part.LineSegment(App.Vector(-22, -37, 0), App.Vector(-32, -49, 0)),  # 4
    Part.ArcOfCircle(Part.Circle(App.Vector(0, 0, 0), App.Vector(0, 0, 1), 58), math.radians(-124), math.radians(-100)),  # 5
    Part.LineSegment(App.Vector(-10, -58, 0), App.Vector(-10, -42, 0)),  # 6
    Part.ArcOfCircle(Part.Circle(App.Vector(0, 0, 0), App.Vector(0, 0, 1), 43), math.radians(-119.97), math.radians(-103.39)),  # 7
    Part.LineSegment(App.Vector(-42, -10, 0), App.Vector(-58, -10, 0)),  # 8
    Part.ArcOfCircle(Part.Circle(App.Vector(0, 0, 0), App.Vector(0, 0, 1), 58), math.radians(-170), math.radians(-143)),  # 9
    Part.LineSegment(App.Vector(-47, -35, 0), App.Vector(-36, -24, 0)),  # 10
    Part.ArcOfCircle(Part.Circle(App.Vector(0, 0, 0), App.Vector(0, 0, 1), 43), math.radians(-166.61), math.radians(-146.75)),  # 11
    Part.LineSegment(App.Vector(-37, 22, 0), App.Vector(-48, 33, 0)),  # 12
    Part.ArcOfCircle(Part.Circle(App.Vector(0, 0, 0), App.Vector(0, 0, 1), 58), math.radians(146), math.radians(170)),  # 13
    Part.LineSegment(App.Vector(-58, 10, 0), App.Vector(-42, 10, 0)),  # 14
    Part.ArcOfCircle(Part.Circle(App.Vector(0, 0, 0), App.Vector(0, 0, 1), 43), math.radians(149.46), math.radians(166.61)),  # 15
    Part.LineSegment(App.Vector(-10, 42, 0), App.Vector(-10, 58, 0)),  # 16
    Part.ArcOfCircle(Part.Circle(App.Vector(0, 0, 0), App.Vector(0, 0, 1), 58), math.radians(100), math.radians(126)),  # 17
    Part.LineSegment(App.Vector(-35, 47, 0), App.Vector(-23, 36, 0)),  # 18
    Part.ArcOfCircle(Part.Circle(App.Vector(0, 0, 0), App.Vector(0, 0, 1), 43), math.radians(103.39), math.radians(122.68)),  # 19
    Part.LineSegment(App.Vector(22, 37, 0), App.Vector(32, 49, 0)),  # 20
    Part.ArcOfCircle(Part.Circle(App.Vector(0, 0, 0), App.Vector(0, 0, 1), 58), math.radians(56), math.radians(80)),  # 21
    Part.LineSegment(App.Vector(10, 58, 0), App.Vector(10, 42, 0)),  # 22
    Part.ArcOfCircle(Part.Circle(App.Vector(0, 0, 0), App.Vector(0, 0, 1), 43), math.radians(60.03), math.radians(76.61)),  # 23
    Part.LineSegment(App.Vector(42, 10, 0), App.Vector(58, 10, 0)),  # 24
    Part.ArcOfCircle(Part.Circle(App.Vector(0, 0, 0), App.Vector(0, 0, 1), 58), math.radians(10), math.radians(37)),  # 25
    Part.LineSegment(App.Vector(47, 35, 0), App.Vector(36, 24, 0)),  # 26
    Part.ArcOfCircle(Part.Circle(App.Vector(0, 0, 0), App.Vector(0, 0, 1), 43), math.radians(13.39), math.radians(33.25)),  # 27
    Part.LineSegment(App.Vector(37, -22, 0), App.Vector(48, -33, 0)),  # 28
    Part.ArcOfCircle(Part.Circle(App.Vector(0, 0, 0), App.Vector(0, 0, 1), 58), math.radians(-34), math.radians(-10)),  # 29
    Part.LineSegment(App.Vector(58, -10, 0), App.Vector(42, -10, 0)),  # 30
    Part.ArcOfCircle(Part.Circle(App.Vector(0, 0, 0), App.Vector(0, 0, 1), 43), math.radians(-30.54), math.radians(-13.39)),  # 31
], False)
sketch5.addConstraint([
    Sketcher.Constraint("Coincident", 0, 2, 1, 1),
    Sketcher.Constraint("Coincident", 1, 2, 2, 1),
    Sketcher.Constraint("Coincident", 2, 2, 3, 2),
    Sketcher.Constraint("Coincident", 3, 1, 0, 1),
    Sketcher.Constraint("Coincident", 4, 2, 5, 1),
    Sketcher.Constraint("Coincident", 5, 2, 6, 1),
    Sketcher.Constraint("Coincident", 6, 2, 7, 2),
    Sketcher.Constraint("Coincident", 7, 1, 4, 1),
    Sketcher.Constraint("Coincident", 8, 2, 9, 1),
    Sketcher.Constraint("Coincident", 9, 2, 10, 1),
    Sketcher.Constraint("Coincident", 10, 2, 11, 2),
    Sketcher.Constraint("Coincident", 11, 1, 8, 1),
    Sketcher.Constraint("Coincident", 12, 2, 13, 1),
    Sketcher.Constraint("Coincident", 13, 2, 14, 1),
    Sketcher.Constraint("Coincident", 14, 2, 15, 2),
    Sketcher.Constraint("Coincident", 15, 1, 12, 1),
    Sketcher.Constraint("Coincident", 16, 2, 17, 1),
    Sketcher.Constraint("Coincident", 17, 2, 18, 1),
    Sketcher.Constraint("Coincident", 18, 2, 19, 2),
    Sketcher.Constraint("Coincident", 19, 1, 16, 1),
    Sketcher.Constraint("Coincident", 20, 2, 21, 1),
    Sketcher.Constraint("Coincident", 21, 2, 22, 1),
    Sketcher.Constraint("Coincident", 22, 2, 23, 2),
    Sketcher.Constraint("Coincident", 23, 1, 20, 1),
    Sketcher.Constraint("Coincident", 24, 2, 25, 1),
    Sketcher.Constraint("Coincident", 25, 2, 26, 1),
    Sketcher.Constraint("Coincident", 26, 2, 27, 2),
    Sketcher.Constraint("Coincident", 27, 1, 24, 1),
    Sketcher.Constraint("Coincident", 28, 2, 29, 1),
    Sketcher.Constraint("Coincident", 29, 2, 30, 1),
    Sketcher.Constraint("Coincident", 30, 2, 31, 2),
    Sketcher.Constraint("Coincident", 31, 1, 28, 1),
    Sketcher.Constraint("Vertical", 0),
    Sketcher.Constraint("Vertical", 6),
    Sketcher.Constraint("Horizontal", 8),
    Sketcher.Constraint("Horizontal", 14),
    Sketcher.Constraint("Vertical", 16),
    Sketcher.Constraint("Vertical", 22),
    Sketcher.Constraint("Horizontal", 24),
    Sketcher.Constraint("Horizontal", 30),
    Sketcher.Constraint("Coincident", 1, 3, -1, 1),
    Sketcher.Constraint("Coincident", 3, 3, -1, 1),
    Sketcher.Constraint("Coincident", 5, 3, -1, 1),
    Sketcher.Constraint("Coincident", 7, 3, -1, 1),
    Sketcher.Constraint("Coincident", 9, 3, -1, 1),
    Sketcher.Constraint("Coincident", 11, 3, -1, 1),
    Sketcher.Constraint("Coincident", 13, 3, -1, 1),
    Sketcher.Constraint("Coincident", 15, 3, -1, 1),
    Sketcher.Constraint("Coincident", 17, 3, -1, 1),
    Sketcher.Constraint("Coincident", 19, 3, -1, 1),
    Sketcher.Constraint("Coincident", 21, 3, -1, 1),
    Sketcher.Constraint("Coincident", 23, 3, -1, 1),
    Sketcher.Constraint("Coincident", 25, 3, -1, 1),
    Sketcher.Constraint("Coincident", 27, 3, -1, 1),
    Sketcher.Constraint("Coincident", 29, 3, -1, 1),
    Sketcher.Constraint("Coincident", 31, 3, -1, 1),
    Sketcher.Constraint("Equal", 1, 5),
    Sketcher.Constraint("Equal", 3, 7),
    Sketcher.Constraint("Equal", 5, 9),
    Sketcher.Constraint("Equal", 7, 11),
    Sketcher.Constraint("Equal", 9, 13),
    Sketcher.Constraint("Equal", 11, 15),
    Sketcher.Constraint("Equal", 13, 17),
    Sketcher.Constraint("Equal", 15, 19),
    Sketcher.Constraint("Equal", 17, 21),
    Sketcher.Constraint("Equal", 19, 23),
    Sketcher.Constraint("Equal", 21, 25),
    Sketcher.Constraint("Equal", 23, 27),
    Sketcher.Constraint("Equal", 25, 29),
    Sketcher.Constraint("Equal", 27, 31),
    Sketcher.Constraint("Parallel", 4, 10),
    Sketcher.Constraint("Parallel", 2, 12),
    Sketcher.Constraint("Parallel", 12, 18),
    Sketcher.Constraint("Parallel", 10, 20),
    Sketcher.Constraint("Parallel", 20, 26),
    Sketcher.Constraint("Parallel", 18, 28),
    Sketcher.Constraint("Horizontal", 0, 2, 5, 2),
    Sketcher.Constraint("Horizontal", 16, 2, 21, 2),
    Sketcher.Constraint("Horizontal", 14, 2, 24, 2),
    Sketcher.Constraint("Horizontal", 11, 1, 29, 2),
    Sketcher.Constraint("Vertical", 8, 2, 13, 2),
    Sketcher.Constraint("Vertical", 6, 2, 16, 2),
    Sketcher.Constraint("Equal", 30, 0),
    Sketcher.Constraint("Equal", 2, 4),
    Sketcher.Constraint("Equal", 4, 10),
    Sketcher.Constraint("Equal", 10, 12),
    Sketcher.Constraint("Equal", 12, 18),
    Sketcher.Constraint("Equal", 18, 20),
    Sketcher.Constraint("Equal", 20, 26),
    Sketcher.Constraint("Equal", 26, 28),
    Sketcher.Constraint("Radius", 1, Q("2.3 in")),
    Sketcher.Constraint("Radius", 3, Q("1.7 in")),
    Sketcher.Constraint("DistanceX", 4, 2, -1, 1, Q("1.2697002 in")),
    Sketcher.Constraint("DistanceX", 7, 1, 6, 2, Q("0.4556002 in")),
    Sketcher.Constraint("DistanceX", -1, 1, 0, 2, 10.0),
    Sketcher.Constraint("DistanceX", -1, 1, 2, 2, 23.31291),
])
pocket3 = doc.addObject("PartDesign::Pocket", "Pocket002")
body.addObject(pocket3)
pocket3.Profile = sketch5
pocket3.Length = Q("0.25 in")

# Sketch on YZ plane
sketch6 = doc.addObject("Sketcher::SketchObject", "Sketch005")
body.addObject(sketch6)
sketch6.AttachmentSupport = (doc.YZ_Plane, [""])
sketch6.MapMode = "FlatFace"
sketch6.AttachmentOffset = App.Placement(App.Vector(0, 0, 5.75 * 25.4), App.Rotation())
sketch6.addGeometry([
    Part.LineSegment(App.Vector(32, 49, 0), App.Vector(22, 37, 0)),  # 0
    Part.ArcOfCircle(Part.Circle(App.Vector(0, 0, 0), App.Vector(0, 0, 1), 43), math.radians(60.03), math.radians(76.61)),  # 1
    Part.LineSegment(App.Vector(10, 42, 0), App.Vector(10, 58, 0)),  # 2
    Part.ArcOfCircle(Part.Circle(App.Vector(0, 0, 0), App.Vector(0, 0, 1), 58), math.radians(56), math.radians(80)),  # 3
    Part.LineSegment(App.Vector(-10, 58, 0), App.Vector(-10, 42, 0)),  # 4
    Part.ArcOfCircle(Part.Circle(App.Vector(0, 0, 0), App.Vector(0, 0, 1), 43), math.radians(103.39), math.radians(122.68)),  # 5
    Part.LineSegment(App.Vector(-23, 36, 0), App.Vector(-35, 47, 0)),  # 6
    Part.ArcOfCircle(Part.Circle(App.Vector(0, 0, 0), App.Vector(0, 0, 1), 58), math.radians(100), math.radians(126)),  # 7
    Part.LineSegment(App.Vector(-48, 33, 0), App.Vector(-37, 22, 0)),  # 8
    Part.ArcOfCircle(Part.Circle(App.Vector(0, 0, 0), App.Vector(0, 0, 1), 43), math.radians(149.46), math.radians(166.61)),  # 9
    Part.LineSegment(App.Vector(-42, 10, 0), App.Vector(-58, 10, 0)),  # 10
    Part.ArcOfCircle(Part.Circle(App.Vector(0, 0, 0), App.Vector(0, 0, 1), 58), math.radians(146), math.radians(170)),  # 11
    Part.LineSegment(App.Vector(-58, -10, 0), App.Vector(-42, -10, 0)),  # 12
    Part.ArcOfCircle(Part.Circle(App.Vector(0, 0, 0), App.Vector(0, 0, 1), 43), math.radians(-166.61), math.radians(-146.75)),  # 13
    Part.LineSegment(App.Vector(-36, -24, 0), App.Vector(-47, -35, 0)),  # 14
    Part.ArcOfCircle(Part.Circle(App.Vector(0, 0, 0), App.Vector(0, 0, 1), 58), math.radians(-170), math.radians(-143)),  # 15
    Part.LineSegment(App.Vector(-32, -49, 0), App.Vector(-22, -37, 0)),  # 16
    Part.ArcOfCircle(Part.Circle(App.Vector(0, 0, 0), App.Vector(0, 0, 1), 43), math.radians(-119.97), math.radians(-103.39)),  # 17
    Part.LineSegment(App.Vector(-10, -42, 0), App.Vector(-10, -58, 0)),  # 18
    Part.ArcOfCircle(Part.Circle(App.Vector(0, 0, 0), App.Vector(0, 0, 1), 58), math.radians(-124), math.radians(-100)),  # 19
    Part.LineSegment(App.Vector(10, -58, 0), App.Vector(10, -42, 0)),  # 20
    Part.ArcOfCircle(Part.Circle(App.Vector(0, 0, 0), App.Vector(0, 0, 1), 43), math.radians(-76.61), math.radians(-57.32)),  # 21
    Part.LineSegment(App.Vector(23, -36, 0), App.Vector(35, -47, 0)),  # 22
    Part.ArcOfCircle(Part.Circle(App.Vector(0, 0, 0), App.Vector(0, 0, 1), 58), math.radians(-80), math.radians(-54)),  # 23
    Part.LineSegment(App.Vector(48, -33, 0), App.Vector(37, -22, 0)),  # 24
    Part.ArcOfCircle(Part.Circle(App.Vector(0, 0, 0), App.Vector(0, 0, 1), 43), math.radians(-30.54), math.radians(-13.39)),  # 25
    Part.LineSegment(App.Vector(42, -10, 0), App.Vector(58, -10, 0)),  # 26
    Part.ArcOfCircle(Part.Circle(App.Vector(0, 0, 0), App.Vector(0, 0, 1), 58), math.radians(-34), math.radians(-10)),  # 27
    Part.LineSegment(App.Vector(58, 10, 0), App.Vector(42, 10, 0)),  # 28
    Part.ArcOfCircle(Part.Circle(App.Vector(0, 0, 0), App.Vector(0, 0, 1), 43), math.radians(13.39), math.radians(33.25)),  # 29
    Part.LineSegment(App.Vector(36, 24, 0), App.Vector(47, 35, 0)),  # 30
    Part.ArcOfCircle(Part.Circle(App.Vector(0, 0, 0), App.Vector(0, 0, 1), 58), math.radians(10), math.radians(37)),  # 31
], False)
sketch6.addConstraint([
    Sketcher.Constraint("Coincident", 0, 2, 1, 1),
    Sketcher.Constraint("Coincident", 1, 2, 2, 1),
    Sketcher.Constraint("Coincident", 2, 2, 3, 2),
    Sketcher.Constraint("Coincident", 3, 1, 0, 1),
    Sketcher.Constraint("Coincident", 4, 2, 5, 1),
    Sketcher.Constraint("Coincident", 5, 2, 6, 1),
    Sketcher.Constraint("Coincident", 6, 2, 7, 2),
    Sketcher.Constraint("Coincident", 7, 1, 4, 1),
    Sketcher.Constraint("Coincident", 8, 2, 9, 1),
    Sketcher.Constraint("Coincident", 9, 2, 10, 1),
    Sketcher.Constraint("Coincident", 10, 2, 11, 2),
    Sketcher.Constraint("Coincident", 11, 1, 8, 1),
    Sketcher.Constraint("Coincident", 12, 2, 13, 1),
    Sketcher.Constraint("Coincident", 13, 2, 14, 1),
    Sketcher.Constraint("Coincident", 14, 2, 15, 2),
    Sketcher.Constraint("Coincident", 15, 1, 12, 1),
    Sketcher.Constraint("Coincident", 16, 2, 17, 1),
    Sketcher.Constraint("Coincident", 17, 2, 18, 1),
    Sketcher.Constraint("Coincident", 18, 2, 19, 2),
    Sketcher.Constraint("Coincident", 19, 1, 16, 1),
    Sketcher.Constraint("Coincident", 20, 2, 21, 1),
    Sketcher.Constraint("Coincident", 21, 2, 22, 1),
    Sketcher.Constraint("Coincident", 22, 2, 23, 2),
    Sketcher.Constraint("Coincident", 23, 1, 20, 1),
    Sketcher.Constraint("Coincident", 24, 2, 25, 1),
    Sketcher.Constraint("Coincident", 25, 2, 26, 1),
    Sketcher.Constraint("Coincident", 26, 2, 27, 2),
    Sketcher.Constraint("Coincident", 27, 1, 24, 1),
    Sketcher.Constraint("Coincident", 28, 2, 29, 1),
    Sketcher.Constraint("Coincident", 29, 2, 30, 1),
    Sketcher.Constraint("Coincident", 30, 2, 31, 2),
    Sketcher.Constraint("Coincident", 31, 1, 28, 1),
    Sketcher.Constraint("Vertical", 2),
    Sketcher.Constraint("Vertical", 4),
    Sketcher.Constraint("Horizontal", 10),
    Sketcher.Constraint("Horizontal", 12),
    Sketcher.Constraint("Vertical", 18),
    Sketcher.Constraint("Vertical", 20),
    Sketcher.Constraint("Horizontal", 26),
    Sketcher.Constraint("Horizontal", 28),
    Sketcher.Constraint("Coincident", 1, 3, -1, 1),
    Sketcher.Constraint("Coincident", 3, 3, -1, 1),
    Sketcher.Constraint("Coincident", 5, 3, -1, 1),
    Sketcher.Constraint("Coincident", 7, 3, -1, 1),
    Sketcher.Constraint("Coincident", 9, 3, -1, 1),
    Sketcher.Constraint("Coincident", 11, 3, -1, 1),
    Sketcher.Constraint("Coincident", 13, 3, -1, 1),
    Sketcher.Constraint("Coincident", 15, 3, -1, 1),
    Sketcher.Constraint("Coincident", 17, 3, -1, 1),
    Sketcher.Constraint("Coincident", 19, 3, -1, 1),
    Sketcher.Constraint("Coincident", 21, 3, -1, 1),
    Sketcher.Constraint("Coincident", 23, 3, -1, 1),
    Sketcher.Constraint("Coincident", 25, 3, -1, 1),
    Sketcher.Constraint("Coincident", 27, 3, -1, 1),
    Sketcher.Constraint("Coincident", 29, 3, -1, 1),
    Sketcher.Constraint("Coincident", 31, 3, -1, 1),
    Sketcher.Constraint("Equal", 1, 5),
    Sketcher.Constraint("Equal", 3, 7),
    Sketcher.Constraint("Equal", 5, 9),
    Sketcher.Constraint("Equal", 7, 11),
    Sketcher.Constraint("Equal", 9, 13),
    Sketcher.Constraint("Equal", 11, 15),
    Sketcher.Constraint("Equal", 13, 17),
    Sketcher.Constraint("Equal", 15, 19),
    Sketcher.Constraint("Equal", 17, 21),
    Sketcher.Constraint("Equal", 19, 23),
    Sketcher.Constraint("Equal", 21, 25),
    Sketcher.Constraint("Equal", 23, 27),
    Sketcher.Constraint("Equal", 25, 29),
    Sketcher.Constraint("Equal", 27, 31),
    Sketcher.Constraint("Parallel", 6, 8),
    Sketcher.Constraint("Parallel", 0, 14),
    Sketcher.Constraint("Parallel", 14, 16),
    Sketcher.Constraint("Parallel", 8, 22),
    Sketcher.Constraint("Parallel", 22, 24),
    Sketcher.Constraint("Parallel", 16, 30),
    Sketcher.Constraint("Horizontal", 1, 2, 4, 2),
    Sketcher.Constraint("Horizontal", 17, 2, 20, 2),
    Sketcher.Constraint("Horizontal", 15, 1, 25, 2),
    Sketcher.Constraint("Horizontal", 10, 2, 28, 2),
    Sketcher.Constraint("Vertical", 9, 2, 12, 2),
    Sketcher.Constraint("Vertical", 7, 1, 17, 2),
    Sketcher.Constraint("Equal", 28, 2),
    Sketcher.Constraint("Equal", 0, 6),
    Sketcher.Constraint("Equal", 6, 8),
    Sketcher.Constraint("Equal", 8, 14),
    Sketcher.Constraint("Equal", 14, 16),
    Sketcher.Constraint("Equal", 16, 22),
    Sketcher.Constraint("Equal", 22, 24),
    Sketcher.Constraint("Equal", 24, 30),
    Sketcher.Constraint("Radius", 1, Q("1.7 in")),
    Sketcher.Constraint("Radius", 3, Q("2.3 in")),
    Sketcher.Constraint("DistanceX", -1, 1, 3, 1, Q("1.2697002 in")),
    Sketcher.Constraint("DistanceX", 1, 2, 0, 2, Q("0.4556002 in")),
    Sketcher.Constraint("DistanceX", -1, 1, 2, 2, 10.0),
    Sketcher.Constraint("DistanceX", 5, 2, -1, 1, 23.31291),
])
pocket4 = doc.addObject("PartDesign::Pocket", "Pocket003")
body.addObject(pocket4)
pocket4.Profile = sketch6
pocket4.Length = Q("0.25 in")

doc.recompute()
